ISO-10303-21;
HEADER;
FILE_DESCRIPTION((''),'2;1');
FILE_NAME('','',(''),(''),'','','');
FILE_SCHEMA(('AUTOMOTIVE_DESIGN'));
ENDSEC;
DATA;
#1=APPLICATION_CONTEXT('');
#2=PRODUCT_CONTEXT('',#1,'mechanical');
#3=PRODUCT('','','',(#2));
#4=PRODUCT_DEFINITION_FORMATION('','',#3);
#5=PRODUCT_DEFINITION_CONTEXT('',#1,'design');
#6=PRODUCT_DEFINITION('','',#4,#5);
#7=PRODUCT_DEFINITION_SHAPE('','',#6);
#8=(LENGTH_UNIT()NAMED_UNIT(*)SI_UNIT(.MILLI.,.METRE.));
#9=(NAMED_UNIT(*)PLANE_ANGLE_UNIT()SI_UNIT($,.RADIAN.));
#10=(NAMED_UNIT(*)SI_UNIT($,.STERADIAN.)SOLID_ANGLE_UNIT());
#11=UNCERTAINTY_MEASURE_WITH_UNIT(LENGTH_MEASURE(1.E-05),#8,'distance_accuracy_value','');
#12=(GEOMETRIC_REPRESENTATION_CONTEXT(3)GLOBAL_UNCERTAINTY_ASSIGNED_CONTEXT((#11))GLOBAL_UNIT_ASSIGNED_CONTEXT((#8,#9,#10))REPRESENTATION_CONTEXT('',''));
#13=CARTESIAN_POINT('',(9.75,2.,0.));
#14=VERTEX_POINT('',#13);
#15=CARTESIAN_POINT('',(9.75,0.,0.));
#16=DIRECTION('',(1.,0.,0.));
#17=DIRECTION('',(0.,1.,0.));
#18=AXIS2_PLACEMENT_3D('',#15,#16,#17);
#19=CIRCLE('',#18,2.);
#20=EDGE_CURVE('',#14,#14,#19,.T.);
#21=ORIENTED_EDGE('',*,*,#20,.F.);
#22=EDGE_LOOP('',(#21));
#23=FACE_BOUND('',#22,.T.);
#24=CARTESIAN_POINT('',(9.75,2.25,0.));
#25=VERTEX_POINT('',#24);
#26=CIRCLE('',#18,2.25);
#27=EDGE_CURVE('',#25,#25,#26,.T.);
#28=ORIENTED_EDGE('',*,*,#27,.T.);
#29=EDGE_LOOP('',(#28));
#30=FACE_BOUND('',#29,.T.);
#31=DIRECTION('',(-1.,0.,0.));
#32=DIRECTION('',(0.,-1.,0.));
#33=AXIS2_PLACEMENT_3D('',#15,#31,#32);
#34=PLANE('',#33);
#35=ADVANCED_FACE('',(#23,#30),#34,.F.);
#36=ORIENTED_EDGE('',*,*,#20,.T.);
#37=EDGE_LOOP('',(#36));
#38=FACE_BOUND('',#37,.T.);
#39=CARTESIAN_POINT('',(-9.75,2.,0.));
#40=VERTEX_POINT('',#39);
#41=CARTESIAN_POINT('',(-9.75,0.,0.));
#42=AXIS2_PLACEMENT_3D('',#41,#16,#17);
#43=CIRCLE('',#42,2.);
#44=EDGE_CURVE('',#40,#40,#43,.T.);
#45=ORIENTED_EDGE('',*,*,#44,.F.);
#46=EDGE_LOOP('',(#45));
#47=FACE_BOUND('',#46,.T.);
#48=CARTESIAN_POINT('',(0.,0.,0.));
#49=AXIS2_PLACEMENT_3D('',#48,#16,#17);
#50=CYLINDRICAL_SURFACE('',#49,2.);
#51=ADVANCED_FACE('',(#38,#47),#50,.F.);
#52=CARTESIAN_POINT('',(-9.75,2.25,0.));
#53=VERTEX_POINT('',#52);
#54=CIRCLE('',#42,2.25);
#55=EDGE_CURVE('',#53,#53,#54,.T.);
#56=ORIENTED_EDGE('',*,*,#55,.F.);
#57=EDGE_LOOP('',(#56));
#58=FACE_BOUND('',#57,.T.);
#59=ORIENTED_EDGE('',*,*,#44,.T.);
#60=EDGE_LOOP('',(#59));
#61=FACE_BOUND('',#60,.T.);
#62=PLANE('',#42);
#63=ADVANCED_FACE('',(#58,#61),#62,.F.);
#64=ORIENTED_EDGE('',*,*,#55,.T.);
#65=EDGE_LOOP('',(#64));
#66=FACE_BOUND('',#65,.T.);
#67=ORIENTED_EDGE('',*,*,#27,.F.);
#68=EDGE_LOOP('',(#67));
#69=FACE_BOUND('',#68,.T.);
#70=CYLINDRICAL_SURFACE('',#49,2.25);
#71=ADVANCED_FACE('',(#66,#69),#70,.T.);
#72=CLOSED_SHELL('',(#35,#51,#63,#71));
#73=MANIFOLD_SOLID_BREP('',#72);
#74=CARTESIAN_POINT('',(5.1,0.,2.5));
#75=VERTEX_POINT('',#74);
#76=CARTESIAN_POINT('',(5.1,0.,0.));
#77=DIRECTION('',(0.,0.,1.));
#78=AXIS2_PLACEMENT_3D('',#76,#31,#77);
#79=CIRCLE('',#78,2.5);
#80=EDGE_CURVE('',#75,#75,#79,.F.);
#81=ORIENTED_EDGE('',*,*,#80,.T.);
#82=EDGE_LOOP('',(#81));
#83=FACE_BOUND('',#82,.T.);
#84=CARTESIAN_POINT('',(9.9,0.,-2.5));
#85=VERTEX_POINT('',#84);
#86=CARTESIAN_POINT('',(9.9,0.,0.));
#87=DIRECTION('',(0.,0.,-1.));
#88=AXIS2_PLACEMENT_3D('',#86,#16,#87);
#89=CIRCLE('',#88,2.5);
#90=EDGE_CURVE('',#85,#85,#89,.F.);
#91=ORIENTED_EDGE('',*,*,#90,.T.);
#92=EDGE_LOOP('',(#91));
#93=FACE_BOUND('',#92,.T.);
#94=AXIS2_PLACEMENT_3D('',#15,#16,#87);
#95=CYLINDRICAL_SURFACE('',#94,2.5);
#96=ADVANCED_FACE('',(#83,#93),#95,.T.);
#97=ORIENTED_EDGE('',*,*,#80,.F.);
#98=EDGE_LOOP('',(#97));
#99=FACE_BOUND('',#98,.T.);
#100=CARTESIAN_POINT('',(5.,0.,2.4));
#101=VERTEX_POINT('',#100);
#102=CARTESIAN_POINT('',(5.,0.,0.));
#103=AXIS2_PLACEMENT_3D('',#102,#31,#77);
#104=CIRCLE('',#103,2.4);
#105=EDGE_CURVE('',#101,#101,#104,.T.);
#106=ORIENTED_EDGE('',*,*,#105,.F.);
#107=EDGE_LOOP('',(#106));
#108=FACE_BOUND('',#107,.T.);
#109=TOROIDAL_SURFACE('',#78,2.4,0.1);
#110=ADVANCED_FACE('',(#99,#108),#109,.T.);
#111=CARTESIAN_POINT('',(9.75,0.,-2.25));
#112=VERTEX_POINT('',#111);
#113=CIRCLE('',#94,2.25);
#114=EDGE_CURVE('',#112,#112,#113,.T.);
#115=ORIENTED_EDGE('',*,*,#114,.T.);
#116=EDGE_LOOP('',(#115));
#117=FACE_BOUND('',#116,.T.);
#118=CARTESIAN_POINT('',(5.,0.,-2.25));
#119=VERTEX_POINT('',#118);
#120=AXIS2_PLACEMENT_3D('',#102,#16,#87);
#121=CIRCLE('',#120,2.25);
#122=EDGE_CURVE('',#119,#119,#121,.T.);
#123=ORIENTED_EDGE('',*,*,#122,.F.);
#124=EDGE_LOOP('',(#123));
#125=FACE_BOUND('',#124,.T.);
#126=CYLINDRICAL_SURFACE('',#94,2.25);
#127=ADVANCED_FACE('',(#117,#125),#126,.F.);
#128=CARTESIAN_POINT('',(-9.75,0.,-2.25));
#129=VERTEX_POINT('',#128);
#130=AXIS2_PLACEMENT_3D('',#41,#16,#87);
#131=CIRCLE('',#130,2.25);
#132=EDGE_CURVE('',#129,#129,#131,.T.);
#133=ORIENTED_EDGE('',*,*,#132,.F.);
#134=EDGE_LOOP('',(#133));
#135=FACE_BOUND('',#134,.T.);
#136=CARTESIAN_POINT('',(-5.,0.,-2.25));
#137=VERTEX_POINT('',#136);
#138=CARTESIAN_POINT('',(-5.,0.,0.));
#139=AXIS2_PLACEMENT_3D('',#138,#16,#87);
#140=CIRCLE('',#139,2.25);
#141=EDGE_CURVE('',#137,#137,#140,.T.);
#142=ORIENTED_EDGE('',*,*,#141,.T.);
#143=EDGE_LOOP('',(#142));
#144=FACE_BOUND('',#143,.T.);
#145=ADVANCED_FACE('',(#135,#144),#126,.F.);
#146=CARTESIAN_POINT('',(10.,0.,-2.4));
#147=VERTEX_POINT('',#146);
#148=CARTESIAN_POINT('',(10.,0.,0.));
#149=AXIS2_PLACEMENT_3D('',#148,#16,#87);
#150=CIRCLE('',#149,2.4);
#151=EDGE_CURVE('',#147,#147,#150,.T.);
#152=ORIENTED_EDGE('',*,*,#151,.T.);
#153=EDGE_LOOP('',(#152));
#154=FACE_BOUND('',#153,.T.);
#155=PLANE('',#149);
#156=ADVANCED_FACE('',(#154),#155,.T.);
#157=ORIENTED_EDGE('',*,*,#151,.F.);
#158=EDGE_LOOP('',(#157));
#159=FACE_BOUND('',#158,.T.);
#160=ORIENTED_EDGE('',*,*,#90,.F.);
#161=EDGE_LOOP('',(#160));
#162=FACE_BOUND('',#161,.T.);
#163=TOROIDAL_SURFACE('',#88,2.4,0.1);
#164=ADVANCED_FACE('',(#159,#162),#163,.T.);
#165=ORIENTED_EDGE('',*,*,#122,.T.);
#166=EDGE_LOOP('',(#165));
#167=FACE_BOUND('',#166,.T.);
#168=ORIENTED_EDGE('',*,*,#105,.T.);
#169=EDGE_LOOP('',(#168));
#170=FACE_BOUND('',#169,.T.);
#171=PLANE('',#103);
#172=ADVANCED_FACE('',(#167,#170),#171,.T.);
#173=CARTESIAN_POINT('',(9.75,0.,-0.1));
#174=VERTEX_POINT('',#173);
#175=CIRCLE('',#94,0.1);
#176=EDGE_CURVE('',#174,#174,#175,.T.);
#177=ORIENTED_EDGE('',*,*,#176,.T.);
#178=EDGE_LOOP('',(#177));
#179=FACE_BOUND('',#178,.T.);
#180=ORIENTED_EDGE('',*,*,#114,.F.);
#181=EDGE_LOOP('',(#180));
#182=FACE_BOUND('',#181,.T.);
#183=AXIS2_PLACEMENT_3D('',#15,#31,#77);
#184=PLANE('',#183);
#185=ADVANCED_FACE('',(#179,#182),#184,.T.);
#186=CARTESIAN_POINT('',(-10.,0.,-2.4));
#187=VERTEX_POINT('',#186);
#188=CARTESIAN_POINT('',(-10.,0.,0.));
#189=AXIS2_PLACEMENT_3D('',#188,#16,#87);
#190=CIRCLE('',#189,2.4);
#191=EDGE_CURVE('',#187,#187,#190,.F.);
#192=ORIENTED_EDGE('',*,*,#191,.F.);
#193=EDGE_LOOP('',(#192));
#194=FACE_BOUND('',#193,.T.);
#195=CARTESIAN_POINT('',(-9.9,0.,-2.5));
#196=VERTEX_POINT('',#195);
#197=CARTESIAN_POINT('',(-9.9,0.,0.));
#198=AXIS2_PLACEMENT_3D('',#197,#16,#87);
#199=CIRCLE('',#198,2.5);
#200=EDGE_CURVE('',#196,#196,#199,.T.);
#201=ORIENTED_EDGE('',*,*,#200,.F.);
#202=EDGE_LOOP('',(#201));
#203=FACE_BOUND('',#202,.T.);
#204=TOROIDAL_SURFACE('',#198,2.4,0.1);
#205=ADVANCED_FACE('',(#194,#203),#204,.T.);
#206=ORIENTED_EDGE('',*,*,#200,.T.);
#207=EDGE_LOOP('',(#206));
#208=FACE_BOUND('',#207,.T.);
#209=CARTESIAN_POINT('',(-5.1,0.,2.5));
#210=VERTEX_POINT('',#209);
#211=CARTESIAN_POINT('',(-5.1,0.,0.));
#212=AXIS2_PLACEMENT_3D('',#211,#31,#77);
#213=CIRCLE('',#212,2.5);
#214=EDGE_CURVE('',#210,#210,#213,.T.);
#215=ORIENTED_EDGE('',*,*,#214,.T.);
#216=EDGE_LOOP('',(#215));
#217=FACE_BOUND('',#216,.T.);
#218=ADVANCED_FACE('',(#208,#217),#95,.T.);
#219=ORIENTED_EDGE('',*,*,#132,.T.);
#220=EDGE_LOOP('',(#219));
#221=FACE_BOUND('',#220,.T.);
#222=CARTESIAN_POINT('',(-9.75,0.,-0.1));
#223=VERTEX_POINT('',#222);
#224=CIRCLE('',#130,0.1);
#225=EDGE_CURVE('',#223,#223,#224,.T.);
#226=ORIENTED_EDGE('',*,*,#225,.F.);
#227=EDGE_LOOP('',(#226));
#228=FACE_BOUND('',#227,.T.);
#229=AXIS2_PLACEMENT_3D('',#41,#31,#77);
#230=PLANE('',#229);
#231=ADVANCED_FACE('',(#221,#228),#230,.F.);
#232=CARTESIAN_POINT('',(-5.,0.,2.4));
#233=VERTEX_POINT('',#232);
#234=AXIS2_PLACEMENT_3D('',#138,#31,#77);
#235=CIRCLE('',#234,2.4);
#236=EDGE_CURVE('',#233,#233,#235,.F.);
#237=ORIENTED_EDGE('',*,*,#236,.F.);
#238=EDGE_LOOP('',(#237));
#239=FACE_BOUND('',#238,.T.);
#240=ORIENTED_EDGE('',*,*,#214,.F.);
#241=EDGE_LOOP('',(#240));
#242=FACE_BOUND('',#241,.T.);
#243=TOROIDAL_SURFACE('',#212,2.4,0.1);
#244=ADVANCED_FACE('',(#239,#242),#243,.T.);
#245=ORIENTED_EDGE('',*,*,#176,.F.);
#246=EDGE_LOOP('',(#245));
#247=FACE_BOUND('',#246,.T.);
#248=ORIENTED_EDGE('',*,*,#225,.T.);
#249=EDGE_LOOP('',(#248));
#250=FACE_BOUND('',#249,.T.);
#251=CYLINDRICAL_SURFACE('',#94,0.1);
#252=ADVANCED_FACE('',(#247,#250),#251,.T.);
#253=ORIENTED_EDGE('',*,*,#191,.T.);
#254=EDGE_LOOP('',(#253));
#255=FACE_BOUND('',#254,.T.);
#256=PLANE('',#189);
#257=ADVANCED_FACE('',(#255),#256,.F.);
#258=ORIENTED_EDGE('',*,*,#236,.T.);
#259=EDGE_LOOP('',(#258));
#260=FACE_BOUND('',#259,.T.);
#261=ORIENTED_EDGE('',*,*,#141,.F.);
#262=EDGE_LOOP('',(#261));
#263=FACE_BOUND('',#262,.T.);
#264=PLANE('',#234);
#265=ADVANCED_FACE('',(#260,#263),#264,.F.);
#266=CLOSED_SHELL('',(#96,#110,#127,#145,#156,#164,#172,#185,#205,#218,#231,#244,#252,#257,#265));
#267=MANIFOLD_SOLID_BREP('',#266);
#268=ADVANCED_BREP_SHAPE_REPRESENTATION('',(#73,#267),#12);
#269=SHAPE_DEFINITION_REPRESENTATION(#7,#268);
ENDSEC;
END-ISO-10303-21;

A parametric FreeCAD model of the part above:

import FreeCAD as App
import Part
import Sketcher

V = App.Vector
Q = App.Units.Quantity


def edges_at(feature, points):
    """Names of the edges that pass closest to the given points."""
    edges = feature.Shape.Edges
    near = lambda p: min(range(len(edges)), key=lambda i: edges[i].distToShape(Part.Vertex(*p))[0])
    return sorted({f"Edge{near(p) + 1}" for p in points})

doc = App.newDocument("Part")
params = doc.addObject("Spreadsheet::Sheet", "Params")
for row, (alias, value) in enumerate([
    ("sketch1_width", "19.5 mm"),
    ("sketch1_height", "0.25 mm"),
    ("revolution_angle", "360 deg"),
    ("sketch2_width", "5 mm"),
    ("sketch2_width2", "20 mm"),
    ("sketch2_width3", "19.5 mm"),
    ("sketch2_height", "2.5 mm"),
    ("sketch2_height2", "2.15 mm"),
    ("revolution2_angle", "360 deg"),
    ("fillet_radius", "0.1 mm"),
], start=1):
    params.set(f"A{row}", alias)
    params.set(f"B{row}", "=" + value)
    params.setAlias(f"B{row}", alias)

body = doc.addObject("PartDesign::Body", "Body")

# Sketch on XY plane
sketch1 = doc.addObject("Sketcher::SketchObject", "Sketch")
body.addObject(sketch1)
sketch1.AttachmentSupport = (doc.XY_Plane, [""])
sketch1.MapMode = "FlatFace"
sketch1.addGeometry(Part.LineSegment(V(-9.75, 2.25, 0), V(-9.75, 2, 0)), False)
sketch1.addGeometry(Part.LineSegment(V(-9.75, 2, 0), V(9.75, 2, 0)), False)
sketch1.addGeometry(Part.LineSegment(V(9.75, 2, 0), V(9.75, 2.25, 0)), False)
sketch1.addGeometry(Part.LineSegment(V(9.75, 2.25, 0), V(-9.75, 2.25, 0)), False)
sketch1.addConstraint(Sketcher.Constraint("Coincident", 0, 2, 1, 1))
sketch1.addConstraint(Sketcher.Constraint("Coincident", 1, 2, 2, 1))
sketch1.addConstraint(Sketcher.Constraint("Coincident", 2, 2, 3, 1))
sketch1.addConstraint(Sketcher.Constraint("Coincident", 3, 2, 0, 1))
sketch1.addConstraint(Sketcher.Constraint("Vertical", 0))
sketch1.addConstraint(Sketcher.Constraint("Horizontal", 1))
sketch1.addConstraint(Sketcher.Constraint("Vertical", 2))
sketch1.addConstraint(Sketcher.Constraint("Horizontal", 3))
sketch1.addConstraint(Sketcher.Constraint("DistanceX", 1, 1, 1, 2, Q("19.5 mm")))
sketch1.addConstraint(Sketcher.Constraint("DistanceY", -1, 1, 0, 2, Q("2 mm")))
sketch1.addConstraint(Sketcher.Constraint("DistanceY", 0, 2, 0, 1, Q("0.25 mm")))
sketch1.addConstraint(Sketcher.Constraint("DistanceX", 0, 2, -1, 1, Q("9.75 mm")))
sketch1.setExpression("Constraints[8]", "Params.sketch1_width")
sketch1.setExpression("Constraints[10]", "Params.sketch1_height")
revolution = doc.addObject("PartDesign::Revolution", "Revolution")
body.addObject(revolution)
revolution.Profile = sketch1
revolution.ReferenceAxis = (sketch1, ["H_Axis"])
revolution.setExpression("Angle", "Params.revolution_angle")
body2 = doc.addObject("PartDesign::Body", "Body001")

# Sketch on XY plane
sketch2 = doc.addObject("Sketcher::SketchObject", "Sketch001")
body2.addObject(sketch2)
sketch2.AttachmentSupport = (doc.getObject("XY_Plane001"), [""])
sketch2.MapMode = "FlatFace"
sketch2.addGeometry(Part.LineSegment(V(-9.75, 0.1, 0), V(-9.75, 2.25, 0)), False)
sketch2.addGeometry(Part.LineSegment(V(-9.75, 2.25, 0), V(-5, 2.25, 0)), False)
sketch2.addGeometry(Part.LineSegment(V(-5, 2.25, 0), V(-5, 2.5, 0)), False)
sketch2.addGeometry(Part.LineSegment(V(-5, 2.5, 0), V(-10, 2.5, 0)), False)
sketch2.addGeometry(Part.LineSegment(V(-10, 2.5, 0), V(-10, 0, 0)), False)
sketch2.addGeometry(Part.LineSegment(V(-10, 0, 0), V(10, 0, 0)), False)
sketch2.addGeometry(Part.LineSegment(V(10, 0, 0), V(10, 2.5, 0)), False)
sketch2.addGeometry(Part.LineSegment(V(10, 2.5, 0), V(5, 2.5, 0)), False)
sketch2.addGeometry(Part.LineSegment(V(5, 2.5, 0), V(5, 2.25, 0)), False)
sketch2.addGeometry(Part.LineSegment(V(5, 2.25, 0), V(9.75, 2.25, 0)), False)
sketch2.addGeometry(Part.LineSegment(V(9.75, 2.25, 0), V(9.75, 0.1, 0)), False)
sketch2.addGeometry(Part.LineSegment(V(9.75, 0.1, 0), V(-9.75, 0.1, 0)), False)
sketch2.addConstraint(Sketcher.Constraint("Coincident", 0, 2, 1, 1))
sketch2.addConstraint(Sketcher.Constraint("Coincident", 1, 2, 2, 1))
sketch2.addConstraint(Sketcher.Constraint("Coincident", 2, 2, 3, 1))
sketch2.addConstraint(Sketcher.Constraint("Coincident", 3, 2, 4, 1))
sketch2.addConstraint(Sketcher.Constraint("Coincident", 4, 2, 5, 1))
sketch2.addConstraint(Sketcher.Constraint("Coincident", 5, 2, 6, 1))
sketch2.addConstraint(Sketcher.Constraint("Coincident", 6, 2, 7, 1))
sketch2.addConstraint(Sketcher.Constraint("Coincident", 7, 2, 8, 1))
sketch2.addConstraint(Sketcher.Constraint("Coincident", 8, 2, 9, 1))
sketch2.addConstraint(Sketcher.Constraint("Coincident", 9, 2, 10, 1))
sketch2.addConstraint(Sketcher.Constraint("Coincident", 10, 2, 11, 1))
sketch2.addConstraint(Sketcher.Constraint("Coincident", 11, 2, 0, 1))
sketch2.addConstraint(Sketcher.Constraint("Vertical", 0))
sketch2.addConstraint(Sketcher.Constraint("Horizontal", 1))
sketch2.addConstraint(Sketcher.Constraint("Vertical", 2))
sketch2.addConstraint(Sketcher.Constraint("Horizontal", 3))
sketch2.addConstraint(Sketcher.Constraint("Vertical", 4))
sketch2.addConstraint(Sketcher.Constraint("Horizontal", 5))
sketch2.addConstraint(Sketcher.Constraint("Vertical", 6))
sketch2.addConstraint(Sketcher.Constraint("Horizontal", 7))
sketch2.addConstraint(Sketcher.Constraint("Vertical", 8))
sketch2.addConstraint(Sketcher.Constraint("Horizontal", 9))
sketch2.addConstraint(Sketcher.Constraint("Vertical", 10))
sketch2.addConstraint(Sketcher.Constraint("Horizontal", 11))
sketch2.addConstraint(Sketcher.Constraint("Symmetric", 4, 2, 5, 2, -1, 1))
sketch2.addConstraint(Sketcher.Constraint("Symmetric", 2, 2, 7, 2, -2))
sketch2.addConstraint(Sketcher.Constraint("Symmetric", 0, 2, 9, 2, -2))
sketch2.addConstraint(Sketcher.Constraint("DistanceX", 3, 2, 3, 1, Q("5 mm")))
sketch2.addConstraint(Sketcher.Constraint("DistanceX", 5, 1, 5, 2, Q("20 mm")))
sketch2.addConstraint(Sketcher.Constraint("DistanceX", 11, 2, 11, 1, Q("19.5 mm")))
sketch2.addConstraint(Sketcher.Constraint("DistanceY", 4, 2, 4, 1, Q("2.5 mm")))
sketch2.addConstraint(Sketcher.Constraint("DistanceY", 0, 1, 0, 2, Q("2.15 mm")))
sketch2.addConstraint(Sketcher.Constraint("DistanceY", 2, 1, 2, 2, Q("0.25 mm")))
sketch2.setExpression("Constraints[27]", "Params.sketch2_width")
sketch2.setExpression("Constraints[28]", "Params.sketch2_width2")
sketch2.setExpression("Constraints[29]", "Params.sketch2_width3")
sketch2.setExpression("Constraints[30]", "Params.sketch2_height")
sketch2.setExpression("Constraints[31]", "Params.sketch2_height2")
revolution2 = doc.addObject("PartDesign::Revolution", "Revolution001")
body2.addObject(revolution2)
revolution2.Profile = sketch2
revolution2.ReferenceAxis = (sketch2, ["H_Axis"])
revolution2.setExpression("Angle", "Params.revolution2_angle")
doc.recompute()

fillet = doc.addObject("PartDesign::Fillet", "Fillet")
body2.addObject(fillet)
fillet.Base = (revolution2, edges_at(revolution2, [
    (-10, 0, 2.5),
    (-5, 0, 2.5),
    (5, 0, 2.5),
    (10, 0, 2.5),
]))
fillet.setExpression("Radius", "Params.fillet_radius")

doc.recompute()
